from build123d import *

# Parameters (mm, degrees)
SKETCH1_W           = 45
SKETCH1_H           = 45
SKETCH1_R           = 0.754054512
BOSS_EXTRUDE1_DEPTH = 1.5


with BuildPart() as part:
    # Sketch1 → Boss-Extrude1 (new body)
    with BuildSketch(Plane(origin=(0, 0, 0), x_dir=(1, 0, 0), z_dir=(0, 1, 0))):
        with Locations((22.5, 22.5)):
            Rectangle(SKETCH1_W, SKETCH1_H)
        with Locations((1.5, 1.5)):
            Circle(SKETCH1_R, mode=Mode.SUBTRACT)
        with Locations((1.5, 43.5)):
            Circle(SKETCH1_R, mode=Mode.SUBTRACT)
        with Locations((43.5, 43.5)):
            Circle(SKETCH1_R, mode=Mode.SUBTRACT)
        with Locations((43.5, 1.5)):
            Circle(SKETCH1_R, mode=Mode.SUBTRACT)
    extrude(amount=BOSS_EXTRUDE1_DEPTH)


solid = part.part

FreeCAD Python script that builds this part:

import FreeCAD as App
import Part
import Sketcher
from FreeCAD import Vector
Q = App.Units.Quantity


def add_polygon(sketch, points):
    """Adds a closed chain of lines whose ends are joined by coincident constraints."""
    first, n = sketch.GeometryCount, len(points)
    for a, b in zip(points, points[1:] + points[:1]):
        sketch.addGeometry(Part.LineSegment(App.Vector(*a, 0), App.Vector(*b, 0)), False)
    for i in range(n):
        sketch.addConstraint(Sketcher.Constraint("Coincident", first + i, 2, first + (i + 1) % n, 1))

doc = App.newDocument("Part")
body = doc.addObject("PartDesign::Body", "Body")

sketch1 = doc.addObject("Sketcher::SketchObject", "Sketch")
body.addObject(sketch1)
sketch1.AttachmentSupport = (doc.XZ_Plane, [""])
sketch1.MapMode = "FlatFace"
add_polygon(sketch1, [(0, -45), (0, 0), (45, 0), (45, -45)])
sketch1.addGeometry(Part.Circle(Vector(1.5, -1.5, 0), Vector(0, 0, 1), 0.754055), False)
sketch1.addGeometry(Part.Circle(Vector(43.5, -1.5, 0), Vector(0, 0, 1), 0.754055), False)
sketch1.addGeometry(Part.Circle(Vector(1.5, -43.5, 0), Vector(0, 0, 1), 0.754055), False)
sketch1.addGeometry(Part.Circle(Vector(43.5, -43.5, 0), Vector(0, 0, 1), 0.754055), False)
sketch1.addConstraint([
    Sketcher.Constraint("Vertical", 0),
    Sketcher.Constraint("Horizontal", 1),
    Sketcher.Constraint("Vertical", 2),
    Sketcher.Constraint("Horizontal", 3),
    Sketcher.Constraint("Coincident", 0, 2, -1, 1),
    Sketcher.Constraint("Equal", 4, 5),
    Sketcher.Constraint("Equal", 5, 6),
    Sketcher.Constraint("Equal", 6, 7),
    Sketcher.Constraint("Horizontal", 4, 3, 5, 3),
    Sketcher.Constraint("Horizontal", 6, 3, 7, 3),
    Sketcher.Constraint("Vertical", 4, 3, 6, 3),
    Sketcher.Constraint("Vertical", 5, 3, 7, 3),
    Sketcher.Constraint("Equal", 3, 0),
    Sketcher.Constraint("DistanceX", 1, 1, 1, 2, Q("45 mm")),
    Sketcher.Constraint("DistanceX", 4, 3, 5, 3, Q("42 mm")),
    Sketcher.Constraint("DistanceY", 6, 3, 4, 3, Q("42 mm")),
    Sketcher.Constraint("DistanceX", -1, 1, 4, 3, Q("1.5 mm")),
    Sketcher.Constraint("DistanceY", 4, 3, -1, 1, Q("1.5 mm")),
    Sketcher.Constraint("Diameter", 4, Q("1.508109 mm")),
])
pad1 = doc.addObject("PartDesign::Pad", "Pad")
body.addObject(pad1)
pad1.Profile = sketch1
pad1.Length = 1.5
pad1.Reversed = True

doc.recompute()
